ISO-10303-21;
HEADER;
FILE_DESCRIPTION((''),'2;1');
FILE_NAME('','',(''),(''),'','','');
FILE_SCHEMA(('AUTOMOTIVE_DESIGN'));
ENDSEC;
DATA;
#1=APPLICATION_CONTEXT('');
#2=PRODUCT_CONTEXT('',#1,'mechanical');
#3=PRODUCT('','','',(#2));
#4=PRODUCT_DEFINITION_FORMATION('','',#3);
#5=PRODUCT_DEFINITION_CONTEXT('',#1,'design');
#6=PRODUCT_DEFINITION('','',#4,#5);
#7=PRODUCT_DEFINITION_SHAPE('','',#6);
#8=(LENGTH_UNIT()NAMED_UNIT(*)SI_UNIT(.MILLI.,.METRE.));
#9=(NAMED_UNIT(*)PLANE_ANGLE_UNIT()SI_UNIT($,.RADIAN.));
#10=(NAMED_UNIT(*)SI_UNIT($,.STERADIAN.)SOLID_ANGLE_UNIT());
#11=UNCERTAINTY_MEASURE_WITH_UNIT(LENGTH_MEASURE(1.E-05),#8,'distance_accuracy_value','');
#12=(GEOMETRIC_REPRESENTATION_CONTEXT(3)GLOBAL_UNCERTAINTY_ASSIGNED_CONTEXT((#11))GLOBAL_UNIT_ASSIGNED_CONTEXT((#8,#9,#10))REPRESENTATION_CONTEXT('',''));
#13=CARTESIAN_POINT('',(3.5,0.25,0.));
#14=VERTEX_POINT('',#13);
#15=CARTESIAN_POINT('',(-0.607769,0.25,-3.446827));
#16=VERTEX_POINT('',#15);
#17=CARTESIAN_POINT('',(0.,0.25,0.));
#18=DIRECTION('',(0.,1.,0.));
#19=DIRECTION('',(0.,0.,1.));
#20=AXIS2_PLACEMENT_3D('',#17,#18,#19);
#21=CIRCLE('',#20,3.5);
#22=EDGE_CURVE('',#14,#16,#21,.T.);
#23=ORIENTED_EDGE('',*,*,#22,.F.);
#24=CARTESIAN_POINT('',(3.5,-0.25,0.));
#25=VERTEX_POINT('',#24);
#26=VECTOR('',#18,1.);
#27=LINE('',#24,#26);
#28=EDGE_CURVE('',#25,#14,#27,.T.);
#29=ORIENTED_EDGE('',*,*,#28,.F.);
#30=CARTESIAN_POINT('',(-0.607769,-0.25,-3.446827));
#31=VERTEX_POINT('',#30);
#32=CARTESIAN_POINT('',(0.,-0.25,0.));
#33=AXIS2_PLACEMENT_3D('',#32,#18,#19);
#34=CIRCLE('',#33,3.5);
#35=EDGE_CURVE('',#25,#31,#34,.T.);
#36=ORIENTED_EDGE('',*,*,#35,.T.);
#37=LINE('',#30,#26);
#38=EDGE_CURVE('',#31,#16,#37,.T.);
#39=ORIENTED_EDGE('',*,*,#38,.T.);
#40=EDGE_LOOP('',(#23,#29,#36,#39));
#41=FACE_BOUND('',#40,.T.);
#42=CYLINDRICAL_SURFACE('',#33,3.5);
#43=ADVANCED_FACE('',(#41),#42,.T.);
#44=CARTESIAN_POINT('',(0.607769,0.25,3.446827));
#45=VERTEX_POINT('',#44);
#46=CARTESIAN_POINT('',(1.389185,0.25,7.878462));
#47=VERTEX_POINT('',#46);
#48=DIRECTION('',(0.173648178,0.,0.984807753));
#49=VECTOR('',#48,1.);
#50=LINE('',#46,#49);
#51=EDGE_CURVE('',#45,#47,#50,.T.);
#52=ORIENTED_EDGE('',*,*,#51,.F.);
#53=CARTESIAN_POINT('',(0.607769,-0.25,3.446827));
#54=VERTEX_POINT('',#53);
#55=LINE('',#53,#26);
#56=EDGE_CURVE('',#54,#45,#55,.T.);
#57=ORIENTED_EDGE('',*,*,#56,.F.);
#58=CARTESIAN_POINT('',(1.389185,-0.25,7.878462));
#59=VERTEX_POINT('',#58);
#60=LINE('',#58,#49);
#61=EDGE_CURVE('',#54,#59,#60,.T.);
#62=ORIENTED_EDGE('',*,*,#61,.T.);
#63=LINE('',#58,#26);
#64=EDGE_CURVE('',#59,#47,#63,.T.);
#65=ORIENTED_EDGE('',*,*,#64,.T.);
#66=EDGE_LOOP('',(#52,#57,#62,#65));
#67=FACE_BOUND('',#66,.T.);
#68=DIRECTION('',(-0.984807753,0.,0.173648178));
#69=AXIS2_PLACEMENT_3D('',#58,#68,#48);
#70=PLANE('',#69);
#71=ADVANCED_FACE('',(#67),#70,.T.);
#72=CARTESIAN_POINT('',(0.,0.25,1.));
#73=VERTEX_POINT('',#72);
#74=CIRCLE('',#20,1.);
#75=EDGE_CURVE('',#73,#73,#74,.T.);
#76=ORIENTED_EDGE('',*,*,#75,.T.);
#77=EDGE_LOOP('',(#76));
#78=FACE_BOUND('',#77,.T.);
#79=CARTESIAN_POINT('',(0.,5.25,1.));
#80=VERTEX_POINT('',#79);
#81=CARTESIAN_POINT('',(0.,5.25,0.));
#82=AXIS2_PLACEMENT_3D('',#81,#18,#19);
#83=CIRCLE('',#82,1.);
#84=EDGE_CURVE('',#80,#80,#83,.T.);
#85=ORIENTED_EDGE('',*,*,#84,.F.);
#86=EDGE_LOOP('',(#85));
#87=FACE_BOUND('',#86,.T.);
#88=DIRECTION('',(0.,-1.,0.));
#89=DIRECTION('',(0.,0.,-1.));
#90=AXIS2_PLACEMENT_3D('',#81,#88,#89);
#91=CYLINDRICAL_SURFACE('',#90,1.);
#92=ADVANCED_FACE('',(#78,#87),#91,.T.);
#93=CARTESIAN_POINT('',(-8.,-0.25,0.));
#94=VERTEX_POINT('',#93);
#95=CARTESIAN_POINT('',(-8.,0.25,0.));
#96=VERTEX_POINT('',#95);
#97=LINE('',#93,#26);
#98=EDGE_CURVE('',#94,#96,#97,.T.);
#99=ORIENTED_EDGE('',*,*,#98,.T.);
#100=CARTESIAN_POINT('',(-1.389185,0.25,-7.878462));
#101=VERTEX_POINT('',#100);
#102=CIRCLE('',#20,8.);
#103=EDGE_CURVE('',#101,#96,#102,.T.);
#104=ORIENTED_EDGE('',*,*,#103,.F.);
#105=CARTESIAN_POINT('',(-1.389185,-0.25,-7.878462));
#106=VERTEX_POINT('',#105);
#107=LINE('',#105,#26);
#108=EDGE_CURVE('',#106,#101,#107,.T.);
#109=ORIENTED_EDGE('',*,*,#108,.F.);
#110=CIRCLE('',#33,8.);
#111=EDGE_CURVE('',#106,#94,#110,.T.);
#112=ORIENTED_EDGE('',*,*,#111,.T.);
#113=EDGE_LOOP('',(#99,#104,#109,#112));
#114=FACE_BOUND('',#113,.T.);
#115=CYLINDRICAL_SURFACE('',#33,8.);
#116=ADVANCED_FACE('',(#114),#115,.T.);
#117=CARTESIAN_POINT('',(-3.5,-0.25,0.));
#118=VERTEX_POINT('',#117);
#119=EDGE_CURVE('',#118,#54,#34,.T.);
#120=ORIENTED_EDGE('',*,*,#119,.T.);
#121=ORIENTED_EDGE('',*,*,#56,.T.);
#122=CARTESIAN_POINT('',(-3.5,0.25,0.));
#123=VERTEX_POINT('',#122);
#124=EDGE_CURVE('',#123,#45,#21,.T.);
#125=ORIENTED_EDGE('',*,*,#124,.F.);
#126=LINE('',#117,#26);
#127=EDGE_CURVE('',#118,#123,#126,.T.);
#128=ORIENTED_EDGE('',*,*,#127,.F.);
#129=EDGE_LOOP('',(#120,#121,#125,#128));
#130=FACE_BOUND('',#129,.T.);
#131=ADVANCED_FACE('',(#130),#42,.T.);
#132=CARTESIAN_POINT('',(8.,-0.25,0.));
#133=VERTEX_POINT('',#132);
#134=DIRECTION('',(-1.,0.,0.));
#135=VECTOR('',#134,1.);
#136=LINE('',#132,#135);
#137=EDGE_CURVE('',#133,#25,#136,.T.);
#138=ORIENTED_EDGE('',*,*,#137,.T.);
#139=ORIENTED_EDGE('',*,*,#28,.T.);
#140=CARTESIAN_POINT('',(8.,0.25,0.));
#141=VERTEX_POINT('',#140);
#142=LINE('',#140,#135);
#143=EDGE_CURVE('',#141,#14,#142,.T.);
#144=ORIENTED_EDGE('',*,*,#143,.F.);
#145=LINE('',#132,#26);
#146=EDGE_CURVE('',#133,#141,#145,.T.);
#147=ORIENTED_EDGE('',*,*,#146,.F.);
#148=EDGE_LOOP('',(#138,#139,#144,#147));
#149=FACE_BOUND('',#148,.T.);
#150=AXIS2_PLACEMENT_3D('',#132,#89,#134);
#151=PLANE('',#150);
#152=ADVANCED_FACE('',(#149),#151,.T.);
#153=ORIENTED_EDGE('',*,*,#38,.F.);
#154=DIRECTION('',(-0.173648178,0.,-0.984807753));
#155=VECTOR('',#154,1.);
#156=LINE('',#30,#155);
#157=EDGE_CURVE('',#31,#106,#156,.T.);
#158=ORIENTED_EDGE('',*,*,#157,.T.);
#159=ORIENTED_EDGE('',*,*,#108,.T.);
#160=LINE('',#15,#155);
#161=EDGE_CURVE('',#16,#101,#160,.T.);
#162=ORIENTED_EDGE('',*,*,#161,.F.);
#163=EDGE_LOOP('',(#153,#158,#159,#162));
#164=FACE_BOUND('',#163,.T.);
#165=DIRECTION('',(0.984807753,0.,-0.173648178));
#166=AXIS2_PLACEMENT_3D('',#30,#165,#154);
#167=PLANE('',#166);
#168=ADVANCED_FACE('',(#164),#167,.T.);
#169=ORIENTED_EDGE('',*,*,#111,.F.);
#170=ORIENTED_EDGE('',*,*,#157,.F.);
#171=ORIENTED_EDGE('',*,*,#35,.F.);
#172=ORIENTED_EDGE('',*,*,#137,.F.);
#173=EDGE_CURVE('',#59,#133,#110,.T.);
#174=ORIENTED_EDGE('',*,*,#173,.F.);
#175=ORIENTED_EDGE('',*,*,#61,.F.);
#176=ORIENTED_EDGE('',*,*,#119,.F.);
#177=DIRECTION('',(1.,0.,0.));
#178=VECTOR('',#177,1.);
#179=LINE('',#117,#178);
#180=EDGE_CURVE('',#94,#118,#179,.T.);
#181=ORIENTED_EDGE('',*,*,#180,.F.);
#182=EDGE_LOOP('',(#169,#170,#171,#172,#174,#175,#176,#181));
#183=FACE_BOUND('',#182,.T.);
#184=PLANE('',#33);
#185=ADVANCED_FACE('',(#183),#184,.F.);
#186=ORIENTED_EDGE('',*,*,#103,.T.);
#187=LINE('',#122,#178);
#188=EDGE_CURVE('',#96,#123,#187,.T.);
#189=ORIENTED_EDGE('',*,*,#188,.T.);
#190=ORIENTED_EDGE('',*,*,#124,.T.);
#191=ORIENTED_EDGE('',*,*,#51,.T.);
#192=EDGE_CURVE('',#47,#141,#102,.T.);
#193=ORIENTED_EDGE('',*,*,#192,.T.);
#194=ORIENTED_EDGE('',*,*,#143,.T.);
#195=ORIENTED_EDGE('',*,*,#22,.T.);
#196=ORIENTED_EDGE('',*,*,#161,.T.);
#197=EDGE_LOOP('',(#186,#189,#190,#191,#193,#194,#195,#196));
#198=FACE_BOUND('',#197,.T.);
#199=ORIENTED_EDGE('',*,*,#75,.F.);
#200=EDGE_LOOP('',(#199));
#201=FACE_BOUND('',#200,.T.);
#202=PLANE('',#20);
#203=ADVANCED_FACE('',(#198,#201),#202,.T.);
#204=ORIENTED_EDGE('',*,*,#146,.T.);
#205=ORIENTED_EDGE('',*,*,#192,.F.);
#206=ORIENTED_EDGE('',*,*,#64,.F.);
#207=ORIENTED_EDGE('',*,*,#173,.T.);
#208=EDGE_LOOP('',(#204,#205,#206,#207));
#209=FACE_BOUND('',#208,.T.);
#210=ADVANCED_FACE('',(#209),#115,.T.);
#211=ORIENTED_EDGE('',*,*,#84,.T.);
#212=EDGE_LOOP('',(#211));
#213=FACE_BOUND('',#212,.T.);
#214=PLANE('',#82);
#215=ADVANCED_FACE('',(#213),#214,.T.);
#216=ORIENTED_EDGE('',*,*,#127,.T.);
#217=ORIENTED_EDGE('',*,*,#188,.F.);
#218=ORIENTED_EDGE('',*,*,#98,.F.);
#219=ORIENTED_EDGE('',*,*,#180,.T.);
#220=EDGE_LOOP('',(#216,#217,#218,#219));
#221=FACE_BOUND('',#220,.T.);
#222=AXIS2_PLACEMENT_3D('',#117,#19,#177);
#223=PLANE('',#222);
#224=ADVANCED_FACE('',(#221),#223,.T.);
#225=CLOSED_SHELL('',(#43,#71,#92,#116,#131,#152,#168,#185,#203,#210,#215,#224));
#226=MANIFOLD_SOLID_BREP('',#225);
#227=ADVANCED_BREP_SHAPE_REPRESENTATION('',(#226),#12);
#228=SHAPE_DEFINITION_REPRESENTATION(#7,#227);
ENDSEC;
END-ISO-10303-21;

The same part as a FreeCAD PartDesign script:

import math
import FreeCAD as App
import Part
import Sketcher

V = App.Vector
Q = App.Units.Quantity

doc = App.newDocument("Part")
body = doc.addObject("PartDesign::Body", "Body")

# Sketch on XZ plane
sketch1 = body.newObject("Sketcher::SketchObject", "Sketch")
sketch1.AttachmentSupport = (doc.getObject("XZ_Plane"), [""])
sketch1.MapMode = "FlatFace"
sketch1.addGeometry([
    Part.LineSegment(V(8, 0, 0), V(3.5, 0, 0)),  # 0
    Part.ArcOfCircle(Part.Circle(V(0, 0, 0), V(0, 0, 1), 3.5), math.radians(-100), math.radians(0)),  # 1
    Part.LineSegment(V(-0.607769, -3.446827, 0), V(-1.389185, -7.878462, 0)),  # 2
    Part.ArcOfCircle(Part.Circle(V(0, 0, 0), V(0, 0, 1), 8), math.radians(-180), math.radians(-100)),  # 3
    Part.LineSegment(V(-8, 0, 0), V(-3.5, 0, 0)),  # 4
    Part.ArcOfCircle(Part.Circle(V(0, 0, 0), V(0, 0, 1), 3.5), math.radians(80), math.radians(180)),  # 5
    Part.LineSegment(V(0.607769, 3.446827, 0), V(1.389185, 7.878462, 0)),  # 6
    Part.ArcOfCircle(Part.Circle(V(0, 0, 0), V(0, 0, 1), 8), math.radians(0), math.radians(80)),  # 7
], False)
sketch1.addConstraint([
    Sketcher.Constraint("Coincident", 0, 2, 1, 2),
    Sketcher.Constraint("Coincident", 1, 1, 2, 1),
    Sketcher.Constraint("Coincident", 2, 2, 3, 2),
    Sketcher.Constraint("Coincident", 3, 1, 4, 1),
    Sketcher.Constraint("Coincident", 4, 2, 5, 2),
    Sketcher.Constraint("Coincident", 5, 1, 6, 1),
    Sketcher.Constraint("Coincident", 6, 2, 7, 2),
    Sketcher.Constraint("Coincident", 7, 1, 0, 1),
    Sketcher.Constraint("Horizontal", 0),
    Sketcher.Constraint("Horizontal", 4),
    Sketcher.Constraint("Coincident", 1, 3, -1, 1),
    Sketcher.Constraint("Coincident", 3, 3, -1, 1),
    Sketcher.Constraint("Coincident", 5, 3, -1, 1),
    Sketcher.Constraint("Coincident", 7, 3, -1, 1),
    Sketcher.Constraint("Equal", 1, 5),
    Sketcher.Constraint("Equal", 3, 7),
    Sketcher.Constraint("PointOnObject", 0, 2, -1),
    Sketcher.Constraint("PointOnObject", 3, 1, -1),
    Sketcher.Constraint("Parallel", 2, 6),
    Sketcher.Constraint("Radius", 3, 8.0),
    Sketcher.Constraint("Radius", 1, 3.5),
    Sketcher.Constraint("Angle", 2, Q("-100 deg")),
    Sketcher.Constraint("DistanceX", 1, 1, -1, 1, 0.607769),
    Sketcher.Constraint("DistanceX", -1, 1, 5, 1, 0.607769),
])
pad1 = body.newObject("PartDesign::Pad", "Pad")
pad1.Profile = sketch1
pad1.Type = "TwoLengths"
pad1.Length = 0.25
pad1.Length2 = 0.25
pad1.Reversed = True

# Sketch on XZ plane
sketch2 = body.newObject("Sketcher::SketchObject", "Sketch001")
sketch2.AttachmentSupport = (doc.getObject("XZ_Plane"), [""])
sketch2.MapMode = "FlatFace"
sketch2.AttachmentOffset = App.Placement(V(0, 0, -0.25), App.Rotation())
sketch2.addGeometry(Part.Circle(V(0, 0, 0), V(0, 0, 1), 1), False)
sketch2.addConstraint([
    Sketcher.Constraint("Coincident", 0, 3, -1, 1),
    Sketcher.Constraint("Diameter", 0, 2.0),
])
pad2 = body.newObject("PartDesign::Pad", "Pad001")
pad2.Profile = sketch2
pad2.Length = 5
pad2.Reversed = True

doc.recompute()
